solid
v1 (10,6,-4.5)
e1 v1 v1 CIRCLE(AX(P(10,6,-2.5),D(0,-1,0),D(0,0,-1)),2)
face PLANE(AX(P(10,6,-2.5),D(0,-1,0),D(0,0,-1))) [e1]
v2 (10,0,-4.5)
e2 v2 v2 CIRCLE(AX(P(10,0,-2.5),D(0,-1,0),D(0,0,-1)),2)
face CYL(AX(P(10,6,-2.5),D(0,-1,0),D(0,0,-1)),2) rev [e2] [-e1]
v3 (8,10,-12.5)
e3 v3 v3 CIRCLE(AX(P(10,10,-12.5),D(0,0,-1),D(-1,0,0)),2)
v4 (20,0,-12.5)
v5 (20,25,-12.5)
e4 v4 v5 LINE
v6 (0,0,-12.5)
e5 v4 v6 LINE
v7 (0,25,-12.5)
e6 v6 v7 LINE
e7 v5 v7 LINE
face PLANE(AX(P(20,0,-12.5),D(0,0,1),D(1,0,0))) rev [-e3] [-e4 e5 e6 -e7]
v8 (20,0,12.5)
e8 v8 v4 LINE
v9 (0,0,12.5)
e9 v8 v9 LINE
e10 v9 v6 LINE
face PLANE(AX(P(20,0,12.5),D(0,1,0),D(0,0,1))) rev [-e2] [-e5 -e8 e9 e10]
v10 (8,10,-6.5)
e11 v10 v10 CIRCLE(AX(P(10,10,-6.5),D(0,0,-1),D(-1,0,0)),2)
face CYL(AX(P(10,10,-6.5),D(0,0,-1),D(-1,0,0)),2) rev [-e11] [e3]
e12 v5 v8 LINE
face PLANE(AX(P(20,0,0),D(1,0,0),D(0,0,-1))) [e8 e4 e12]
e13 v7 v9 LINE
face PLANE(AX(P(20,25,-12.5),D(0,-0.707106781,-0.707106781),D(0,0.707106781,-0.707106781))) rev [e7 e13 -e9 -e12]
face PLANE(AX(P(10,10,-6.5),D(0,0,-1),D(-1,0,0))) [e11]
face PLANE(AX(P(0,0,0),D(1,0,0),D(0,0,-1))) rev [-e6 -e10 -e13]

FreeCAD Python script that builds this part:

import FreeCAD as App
import Part
import Sketcher

V = App.Vector


def add_polygon(sketch, points):
    """Adds a closed chain of lines whose ends are joined by coincident constraints."""
    first, n = sketch.GeometryCount, len(points)
    for a, b in zip(points, points[1:] + points[:1]):
        sketch.addGeometry(Part.LineSegment(App.Vector(*a, 0), App.Vector(*b, 0)), False)
    for i in range(n):
        sketch.addConstraint(Sketcher.Constraint("Coincident", first + i, 2, first + (i + 1) % n, 1))

doc = App.newDocument("Part")
body = doc.addObject("PartDesign::Body", "Body")

sketch1 = body.newObject("Sketcher::SketchObject", "Sketch")
sketch1.AttachmentSupport = (doc.getObject("YZ_Plane"), [""])
sketch1.MapMode = "FlatFace"
add_polygon(sketch1, [(0, 12), (0, -12), (25, -12)])
sketch1.addConstraint([
    Sketcher.Constraint("Vertical", 0),
    Sketcher.Constraint("Horizontal", 1),
    Sketcher.Constraint("Symmetric", 0, 2, 2, 2, -1, 1),
    Sketcher.Constraint("Equal", 1, 0),
    Sketcher.Constraint("DistanceX", 1, 1, 1, 2, 25.0),
])
pad1 = body.newObject("PartDesign::Pad", "Pad")
pad1.Profile = sketch1
pad1.Length = 20

sketch2 = body.newObject("Sketcher::SketchObject", "Sketch001")
sketch2.AttachmentSupport = (doc.getObject("XY_Plane"), [""])
sketch2.MapMode = "FlatFace"
sketch2.AttachmentOffset = App.Placement(V(0, 0, -12.5), App.Rotation())
sketch2.addGeometry(Part.Circle(V(10, 10, 0), V(0, 0, 1), 2), False)
sketch2.addConstraint([
    Sketcher.Constraint("Diameter", 0, 4.0),
    Sketcher.Constraint("DistanceX", -1, 1, 0, 3, 10.0),
    Sketcher.Constraint("DistanceY", -1, 1, 0, 3, 10.0),
])
pocket1 = body.newObject("PartDesign::Pocket", "Pocket")
pocket1.Profile = sketch2
pocket1.Length = 6
pocket1.Reversed = True

sketch3 = body.newObject("Sketcher::SketchObject", "Sketch002")
sketch3.AttachmentSupport = (doc.getObject("XZ_Plane"), [""])
sketch3.MapMode = "FlatFace"
sketch3.addGeometry(Part.Circle(V(10, -2.5, 0), V(0, 0, 1), 2), False)
sketch3.addConstraint([
    Sketcher.Constraint("Diameter", 0, 4.0),
    Sketcher.Constraint("DistanceX", -1, 1, 0, 3, 10.0),
    Sketcher.Constraint("DistanceY", 0, 3, -1, 1, 2.5),
])
pocket2 = body.newObject("PartDesign::Pocket", "Pocket001")
pocket2.Profile = sketch3
pocket2.Length = 6

doc.recompute()
